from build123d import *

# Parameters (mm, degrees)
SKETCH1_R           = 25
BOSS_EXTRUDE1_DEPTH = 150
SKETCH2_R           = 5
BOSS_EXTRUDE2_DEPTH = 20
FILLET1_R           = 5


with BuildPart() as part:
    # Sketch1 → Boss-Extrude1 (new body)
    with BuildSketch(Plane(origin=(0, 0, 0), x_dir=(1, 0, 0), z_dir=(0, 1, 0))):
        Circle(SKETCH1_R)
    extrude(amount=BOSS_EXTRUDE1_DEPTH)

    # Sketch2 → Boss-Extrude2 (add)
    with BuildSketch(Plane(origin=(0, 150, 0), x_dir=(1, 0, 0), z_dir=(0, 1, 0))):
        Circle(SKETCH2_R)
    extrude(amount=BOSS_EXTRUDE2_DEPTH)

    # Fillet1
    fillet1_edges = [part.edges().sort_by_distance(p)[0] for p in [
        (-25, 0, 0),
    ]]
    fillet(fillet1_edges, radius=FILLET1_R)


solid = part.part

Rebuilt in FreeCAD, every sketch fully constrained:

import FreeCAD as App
import Part
import Sketcher

V = App.Vector
Q = App.Units.Quantity


def edges_at(feature, points):
    """Names of the edges that pass closest to the given points."""
    edges = feature.Shape.Edges
    near = lambda p: min(range(len(edges)), key=lambda i: edges[i].distToShape(Part.Vertex(*p))[0])
    return sorted({f"Edge{near(p) + 1}" for p in points})

doc = App.newDocument("Part")
body = doc.addObject("PartDesign::Body", "Body")

# Sketch on XZ plane
sketch1 = body.newObject("Sketcher::SketchObject", "Sketch")
sketch1.AttachmentSupport = (doc.getObject("XZ_Plane"), [""])
sketch1.MapMode = "FlatFace"
sketch1.addGeometry(Part.Circle(V(0, 0, 0), V(0, 0, 1), 25), False)
sketch1.addConstraint([
    Sketcher.Constraint("Coincident", 0, 3, -1, 1),
    Sketcher.Constraint("Diameter", 0, Q("50 mm")),
])
pad1 = body.newObject("PartDesign::Pad", "Pad")
pad1.Profile = sketch1
pad1.Length = 150
pad1.Reversed = True

# Sketch on XZ plane
sketch2 = body.newObject("Sketcher::SketchObject", "Sketch001")
sketch2.AttachmentSupport = (doc.getObject("XZ_Plane"), [""])
sketch2.MapMode = "FlatFace"
sketch2.AttachmentOffset = App.Placement(V(0, 0, -150), App.Rotation())
sketch2.addGeometry(Part.Circle(V(0, 0, 0), V(0, 0, 1), 5), False)
sketch2.addConstraint([
    Sketcher.Constraint("Coincident", 0, 3, -1, 1),
    Sketcher.Constraint("Diameter", 0, Q("10 mm")),
])
pad2 = body.newObject("PartDesign::Pad", "Pad001")
pad2.Profile = sketch2
pad2.Length = 20
pad2.Reversed = True
doc.recompute()

fillet = body.newObject("PartDesign::Fillet", "Fillet")
fillet.Base = (pad2, edges_at(pad2, [(-25, 0, 0)]))
fillet.Radius = 5

doc.recompute()
